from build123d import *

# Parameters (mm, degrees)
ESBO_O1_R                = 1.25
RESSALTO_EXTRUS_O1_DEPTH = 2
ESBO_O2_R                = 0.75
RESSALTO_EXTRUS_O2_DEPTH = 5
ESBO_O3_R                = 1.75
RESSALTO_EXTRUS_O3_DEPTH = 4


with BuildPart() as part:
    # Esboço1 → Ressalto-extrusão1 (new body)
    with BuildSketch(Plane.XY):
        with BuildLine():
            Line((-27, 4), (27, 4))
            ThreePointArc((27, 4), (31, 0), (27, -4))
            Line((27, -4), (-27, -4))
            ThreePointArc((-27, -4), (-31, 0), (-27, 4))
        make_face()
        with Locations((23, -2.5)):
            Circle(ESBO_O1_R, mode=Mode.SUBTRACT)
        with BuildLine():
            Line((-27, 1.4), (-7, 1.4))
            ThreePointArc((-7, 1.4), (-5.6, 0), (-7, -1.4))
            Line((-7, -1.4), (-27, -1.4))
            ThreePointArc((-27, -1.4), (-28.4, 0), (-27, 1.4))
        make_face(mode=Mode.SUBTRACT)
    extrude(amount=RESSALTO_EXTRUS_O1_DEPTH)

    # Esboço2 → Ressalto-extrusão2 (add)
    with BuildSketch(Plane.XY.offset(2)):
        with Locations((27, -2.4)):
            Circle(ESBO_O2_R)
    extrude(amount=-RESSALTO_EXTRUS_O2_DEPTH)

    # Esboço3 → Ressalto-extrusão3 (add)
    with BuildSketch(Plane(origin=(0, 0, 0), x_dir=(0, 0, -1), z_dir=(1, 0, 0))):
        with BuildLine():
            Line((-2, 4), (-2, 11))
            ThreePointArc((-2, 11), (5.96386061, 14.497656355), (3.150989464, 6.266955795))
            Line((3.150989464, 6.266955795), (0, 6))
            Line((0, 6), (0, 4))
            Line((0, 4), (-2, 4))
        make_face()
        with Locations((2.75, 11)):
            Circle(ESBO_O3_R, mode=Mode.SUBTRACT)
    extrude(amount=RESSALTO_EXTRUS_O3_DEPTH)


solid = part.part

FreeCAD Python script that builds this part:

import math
import FreeCAD as App
import Part
import Sketcher
from FreeCAD import Vector
Q = App.Units.Quantity

doc = App.newDocument("Part")
body = doc.addObject("PartDesign::Body", "Body")

sketch1 = doc.addObject("Sketcher::SketchObject", "Sketch")
body.addObject(sketch1)
sketch1.AttachmentSupport = (doc.XY_Plane, [""])
sketch1.MapMode = "FlatFace"
sketch1.addGeometry(Part.LineSegment(Vector(27, 4, 0), Vector(-27, 4, 0)), False)
sketch1.addGeometry(Part.ArcOfCircle(Part.Circle(Vector(-27, 0, 0), Vector(0, 0, 1), 4), math.radians(90), math.radians(270)), False)
sketch1.addGeometry(Part.LineSegment(Vector(-27, -4, 0), Vector(27, -4, 0)), False)
sketch1.addGeometry(Part.ArcOfCircle(Part.Circle(Vector(27, 0, 0), Vector(0, 0, 1), 4), math.radians(-90), math.radians(90)), False)
sketch1.addGeometry(Part.Circle(Vector(23, -2.5, 0), Vector(0, 0, 1), 1.2), False)
sketch1.addGeometry(Part.LineSegment(Vector(-27, 1.4, 0), Vector(-7, 1.4, 0)), False)
sketch1.addGeometry(Part.ArcOfCircle(Part.Circle(Vector(-7, 0, 0), Vector(0, 0, 1), 1.4), math.radians(-90), math.radians(90)), False)
sketch1.addGeometry(Part.LineSegment(Vector(-7, -1.4, 0), Vector(-27, -1.4, 0)), False)
sketch1.addGeometry(Part.ArcOfCircle(Part.Circle(Vector(-27, 0, 0), Vector(0, 0, 1), 1.4), math.radians(90), math.radians(270)), False)
sketch1.addConstraint(Sketcher.Constraint("Tangent", 0, 2, 1, 1))
sketch1.addConstraint(Sketcher.Constraint("Tangent", 1, 2, 2, 1))
sketch1.addConstraint(Sketcher.Constraint("Tangent", 2, 2, 3, 1))
sketch1.addConstraint(Sketcher.Constraint("Tangent", 3, 2, 0, 1))
sketch1.addConstraint(Sketcher.Constraint("Tangent", 5, 2, 6, 2))
sketch1.addConstraint(Sketcher.Constraint("Tangent", 6, 1, 7, 1))
sketch1.addConstraint(Sketcher.Constraint("Tangent", 7, 2, 8, 2))
sketch1.addConstraint(Sketcher.Constraint("Tangent", 8, 1, 5, 1))
sketch1.addConstraint(Sketcher.Constraint("Horizontal", 0))
sketch1.addConstraint(Sketcher.Constraint("Horizontal", 2))
sketch1.addConstraint(Sketcher.Constraint("Horizontal", 5))
sketch1.addConstraint(Sketcher.Constraint("Horizontal", 7))
sketch1.addConstraint(Sketcher.Constraint("Coincident", 8, 3, 1, 3))
sketch1.addConstraint(Sketcher.Constraint("Symmetric", 1, 3, 3, 3, -1, 1))
sketch1.addConstraint(Sketcher.Constraint("Radius", 1, Q("4 mm")))
sketch1.addConstraint(Sketcher.Constraint("Diameter", 4, Q("2.5 mm")))
sketch1.addConstraint(Sketcher.Constraint("Radius", 6, Q("1.4 mm")))
sketch1.addConstraint(Sketcher.Constraint("DistanceX", 0, 2, 0, 1, Q("54 mm")))
sketch1.addConstraint(Sketcher.Constraint("DistanceX", 5, 1, 5, 2, Q("20 mm")))
sketch1.addConstraint(Sketcher.Constraint("DistanceX", -1, 1, 4, 3, Q("23 mm")))
sketch1.addConstraint(Sketcher.Constraint("DistanceY", 4, 3, -1, 1, Q("2.5 mm")))
pad1 = doc.addObject("PartDesign::Pad", "Pad")
body.addObject(pad1)
pad1.Profile = sketch1
pad1.Length = 2

sketch2 = doc.addObject("Sketcher::SketchObject", "Sketch001")
body.addObject(sketch2)
sketch2.AttachmentSupport = (doc.XY_Plane, [""])
sketch2.MapMode = "FlatFace"
sketch2.AttachmentOffset = App.Placement(Vector(0, 0, 2), App.Rotation())
sketch2.addGeometry(Part.Circle(Vector(27, -2.4, 0), Vector(0, 0, 1), 0.8), False)
sketch2.addConstraint(Sketcher.Constraint("Diameter", 0, Q("1.5 mm")))
sketch2.addConstraint(Sketcher.Constraint("DistanceX", -1, 1, 0, 3, Q("27 mm")))
sketch2.addConstraint(Sketcher.Constraint("DistanceY", 0, 3, -1, 1, Q("2.4 mm")))
pad2 = doc.addObject("PartDesign::Pad", "Pad001")
body.addObject(pad2)
pad2.Profile = sketch2
pad2.Length = 5
pad2.Reversed = True

sketch3 = doc.addObject("Sketcher::SketchObject", "Sketch002")
body.addObject(sketch3)
sketch3.AttachmentSupport = (doc.YZ_Plane, [""])
sketch3.MapMode = "FlatFace"
sketch3.addGeometry(Part.LineSegment(Vector(11, 2, 0), Vector(4, 2, 0)), False)
sketch3.addGeometry(Part.LineSegment(Vector(4, 2, 0), Vector(4, 0, 0)), False)
sketch3.addGeometry(Part.LineSegment(Vector(4, 0, 0), Vector(6, 0, 0)), False)
sketch3.addGeometry(Part.LineSegment(Vector(6, 0, 0), Vector(6.3, -3.2, 0)), False)
sketch3.addGeometry(Part.ArcOfCircle(Part.Circle(Vector(11, -2.8, 0), Vector(0, 0, 1), 4.8), math.radians(-175), math.radians(90)), False)
sketch3.addGeometry(Part.Circle(Vector(11, -2.8, 0), Vector(0, 0, 1), 1.8), False)
sketch3.addConstraint(Sketcher.Constraint("Coincident", 0, 2, 1, 1))
sketch3.addConstraint(Sketcher.Constraint("Coincident", 1, 2, 2, 1))
sketch3.addConstraint(Sketcher.Constraint("Coincident", 2, 2, 3, 1))
sketch3.addConstraint(Sketcher.Constraint("Tangent", 3, 2, 4, 1))
sketch3.addConstraint(Sketcher.Constraint("Tangent", 4, 2, 0, 1))
sketch3.addConstraint(Sketcher.Constraint("Horizontal", 0))
sketch3.addConstraint(Sketcher.Constraint("Vertical", 1))
sketch3.addConstraint(Sketcher.Constraint("Horizontal", 2))
sketch3.addConstraint(Sketcher.Constraint("Coincident", 5, 3, 4, 3))
sketch3.addConstraint(Sketcher.Constraint("PointOnObject", 1, 2, -1))
sketch3.addConstraint(Sketcher.Constraint("Equal", 2, 1))
sketch3.addConstraint(Sketcher.Constraint("Diameter", 5, Q("3.5 mm")))
sketch3.addConstraint(Sketcher.Constraint("DistanceX", 0, 2, 0, 1, Q("7 mm")))
sketch3.addConstraint(Sketcher.Constraint("DistanceX", 2, 1, 2, 2, Q("2 mm")))
sketch3.addConstraint(Sketcher.Constraint("Radius", 4, Q("4.75 mm")))
sketch3.addConstraint(Sketcher.Constraint("DistanceX", -1, 1, 4, 3, Q("11 mm")))
pad3 = doc.addObject("PartDesign::Pad", "Pad002")
body.addObject(pad3)
pad3.Profile = sketch3
pad3.Length = 4

doc.recompute()
